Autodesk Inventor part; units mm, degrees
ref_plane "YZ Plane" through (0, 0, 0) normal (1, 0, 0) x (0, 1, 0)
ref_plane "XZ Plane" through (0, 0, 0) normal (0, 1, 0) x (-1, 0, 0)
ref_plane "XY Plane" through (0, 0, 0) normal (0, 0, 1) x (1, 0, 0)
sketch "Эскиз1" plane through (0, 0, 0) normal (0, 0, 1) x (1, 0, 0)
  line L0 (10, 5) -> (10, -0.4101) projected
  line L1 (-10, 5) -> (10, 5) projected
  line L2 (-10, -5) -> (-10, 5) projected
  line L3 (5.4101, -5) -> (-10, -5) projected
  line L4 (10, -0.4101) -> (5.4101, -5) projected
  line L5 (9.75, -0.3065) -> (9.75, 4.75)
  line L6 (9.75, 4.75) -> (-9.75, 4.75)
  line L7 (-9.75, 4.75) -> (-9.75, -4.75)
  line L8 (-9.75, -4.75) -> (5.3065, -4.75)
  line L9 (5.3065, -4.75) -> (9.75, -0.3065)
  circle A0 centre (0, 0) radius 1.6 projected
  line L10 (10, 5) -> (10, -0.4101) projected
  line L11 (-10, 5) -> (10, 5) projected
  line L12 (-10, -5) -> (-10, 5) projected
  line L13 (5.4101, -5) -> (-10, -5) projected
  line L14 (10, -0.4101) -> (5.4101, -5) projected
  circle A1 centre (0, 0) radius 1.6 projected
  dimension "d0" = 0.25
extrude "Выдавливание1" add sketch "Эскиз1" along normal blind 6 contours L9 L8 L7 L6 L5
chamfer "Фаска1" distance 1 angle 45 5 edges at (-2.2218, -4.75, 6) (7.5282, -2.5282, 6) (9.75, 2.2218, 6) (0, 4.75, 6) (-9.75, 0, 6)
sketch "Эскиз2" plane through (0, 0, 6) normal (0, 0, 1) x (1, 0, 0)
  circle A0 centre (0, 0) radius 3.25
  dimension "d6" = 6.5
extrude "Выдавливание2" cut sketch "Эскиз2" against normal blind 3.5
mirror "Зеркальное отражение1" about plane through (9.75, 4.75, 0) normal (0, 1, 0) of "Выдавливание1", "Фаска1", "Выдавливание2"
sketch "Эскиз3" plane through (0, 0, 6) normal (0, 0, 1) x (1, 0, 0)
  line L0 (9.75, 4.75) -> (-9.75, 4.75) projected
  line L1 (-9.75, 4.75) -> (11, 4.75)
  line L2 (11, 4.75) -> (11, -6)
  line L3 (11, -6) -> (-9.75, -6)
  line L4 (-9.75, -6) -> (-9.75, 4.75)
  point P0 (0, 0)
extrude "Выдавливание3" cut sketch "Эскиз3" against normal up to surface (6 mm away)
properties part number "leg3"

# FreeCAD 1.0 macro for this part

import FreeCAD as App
import Part
import Sketcher
from FreeCAD import Vector
Q = App.Units.Quantity


def edges_at(feature, points):
    """Names of the edges that pass closest to the given points."""
    edges = feature.Shape.Edges
    near = lambda p: min(range(len(edges)), key=lambda i: edges[i].distToShape(Part.Vertex(*p))[0])
    return sorted({f"Edge{near(p) + 1}" for p in points})

doc = App.newDocument("Part")
body = doc.addObject("PartDesign::Body", "Body")

# Sketch on XY plane
sketch1 = doc.addObject("Sketcher::SketchObject", "Sketch")
body.addObject(sketch1)
sketch1.AttachmentSupport = (doc.XY_Plane, [""])
sketch1.MapMode = "FlatFace"
sketch1.addGeometry([
    Part.LineSegment(Vector(5.3, -4.8, 0), Vector(9.8, -0.3, 0)),  # 0
    Part.LineSegment(Vector(9.8, -0.3, 0), Vector(9.8, 4.8, 0)),  # 1
    Part.LineSegment(Vector(9.8, 4.8, 0), Vector(-9.8, 4.8, 0)),  # 2
    Part.LineSegment(Vector(-9.8, 4.8, 0), Vector(-9.8, -4.8, 0)),  # 3
    Part.LineSegment(Vector(-9.8, -4.8, 0), Vector(5.3, -4.8, 0)),  # 4
    Part.Circle(Vector(0, 0, 0), Vector(0, 0, 1), 1.6),  # 5
], False)
sketch1.addConstraint([
    Sketcher.Constraint("Coincident", 0, 2, 1, 1),
    Sketcher.Constraint("Coincident", 1, 2, 2, 1),
    Sketcher.Constraint("Coincident", 2, 2, 3, 1),
    Sketcher.Constraint("Coincident", 3, 2, 4, 1),
    Sketcher.Constraint("Coincident", 4, 2, 0, 1),
    Sketcher.Constraint("Vertical", 1),
    Sketcher.Constraint("Horizontal", 2),
    Sketcher.Constraint("Vertical", 3),
    Sketcher.Constraint("Horizontal", 4),
    Sketcher.Constraint("Coincident", 5, 3, -1, 1),
    Sketcher.Constraint("Symmetric", 1, 2, 3, 2, -1, 1),
    Sketcher.Constraint("Diameter", 5, 3.2),
    Sketcher.Constraint("Angle", 0, Q("45 deg")),
    Sketcher.Constraint("DistanceX", 2, 2, 2, 1, 19.5),
    Sketcher.Constraint("DistanceY", 3, 2, 3, 1, 9.5),
    Sketcher.Constraint("Distance", 0, 6.284),
])
pad1 = doc.addObject("PartDesign::Pad", "Pad")
body.addObject(pad1)
pad1.Profile = sketch1
pad1.Length = 6
doc.recompute()

chamfer = doc.addObject("PartDesign::Chamfer", "Chamfer")
body.addObject(chamfer)
chamfer.Base = (pad1, edges_at(pad1, [
    (-2.222, -4.75, 6),
    (7.528, -2.528, 6),
    (9.75, 2.222, 6),
    (0, 4.75, 6),
    (-9.75, 0, 6),
]))
chamfer.Size = 1

# Sketch on XY plane
sketch2 = doc.addObject("Sketcher::SketchObject", "Sketch001")
body.addObject(sketch2)
sketch2.AttachmentSupport = (doc.XY_Plane, [""])
sketch2.MapMode = "FlatFace"
sketch2.AttachmentOffset = App.Placement(Vector(0, 0, 6), App.Rotation())
sketch2.addGeometry(Part.Circle(Vector(0, 0, 0), Vector(0, 0, 1), 3.2), False)
sketch2.addConstraint([
    Sketcher.Constraint("Coincident", 0, 3, -1, 1),
    Sketcher.Constraint("Diameter", 0, 6.5),
])
pocket1 = doc.addObject("PartDesign::Pocket", "Pocket")
body.addObject(pocket1)
pocket1.Profile = sketch2
pocket1.Length = 3.5
doc.recompute()

datumplane = doc.addObject("PartDesign::Plane", "DatumPlane")
body.addObject(datumplane)
datumplane.AttachmentSupport = (doc.XZ_Plane, [""])
datumplane.MapMode = "FlatFace"
datumplane.AttachmentOffset = App.Placement(Vector(0, 0, -4.75), App.Rotation())
mirrored = doc.addObject("PartDesign::Mirrored", "Mirrored")
body.addObject(mirrored)
mirrored.Originals = [pad1, chamfer, pocket1]
mirrored.MirrorPlane = (datumplane, [""])
body.Tip = mirrored

# Sketch on XY plane
sketch3 = doc.addObject("Sketcher::SketchObject", "Sketch002")
body.addObject(sketch3)
sketch3.AttachmentSupport = (doc.XY_Plane, [""])
sketch3.MapMode = "FlatFace"
sketch3.AttachmentOffset = App.Placement(Vector(0, 0, 6), App.Rotation())
sketch3.addGeometry([
    Part.LineSegment(Vector(11, 5, 0), Vector(-10, 5, 0)),
    Part.LineSegment(Vector(-10, 5, 0), Vector(-10, -6, 0)),
    Part.LineSegment(Vector(-10, -6, 0), Vector(11, -6, 0)),
    Part.LineSegment(Vector(11, -6, 0), Vector(11, 5, 0)),
], False)
sketch3.addConstraint([
    Sketcher.Constraint("Coincident", 0, 2, 1, 1),
    Sketcher.Constraint("Coincident", 1, 2, 2, 1),
    Sketcher.Constraint("Coincident", 2, 2, 3, 1),
    Sketcher.Constraint("Coincident", 3, 2, 0, 1),
    Sketcher.Constraint("Horizontal", 0),
    Sketcher.Constraint("Vertical", 1),
    Sketcher.Constraint("Horizontal", 2),
    Sketcher.Constraint("Vertical", 3),
    Sketcher.Constraint("DistanceY", 1, 2, -1, 1, 6.0),
    Sketcher.Constraint("DistanceX", -1, 1, 2, 2, 11.0),
    Sketcher.Constraint("DistanceX", 0, 2, 0, 1, 20.75),
    Sketcher.Constraint("DistanceY", 1, 2, 1, 1, 10.75),
])
pocket2 = doc.addObject("PartDesign::Pocket", "Pocket001")
body.addObject(pocket2)
pocket2.Profile = sketch3
pocket2.Length = 6

doc.recompute()
